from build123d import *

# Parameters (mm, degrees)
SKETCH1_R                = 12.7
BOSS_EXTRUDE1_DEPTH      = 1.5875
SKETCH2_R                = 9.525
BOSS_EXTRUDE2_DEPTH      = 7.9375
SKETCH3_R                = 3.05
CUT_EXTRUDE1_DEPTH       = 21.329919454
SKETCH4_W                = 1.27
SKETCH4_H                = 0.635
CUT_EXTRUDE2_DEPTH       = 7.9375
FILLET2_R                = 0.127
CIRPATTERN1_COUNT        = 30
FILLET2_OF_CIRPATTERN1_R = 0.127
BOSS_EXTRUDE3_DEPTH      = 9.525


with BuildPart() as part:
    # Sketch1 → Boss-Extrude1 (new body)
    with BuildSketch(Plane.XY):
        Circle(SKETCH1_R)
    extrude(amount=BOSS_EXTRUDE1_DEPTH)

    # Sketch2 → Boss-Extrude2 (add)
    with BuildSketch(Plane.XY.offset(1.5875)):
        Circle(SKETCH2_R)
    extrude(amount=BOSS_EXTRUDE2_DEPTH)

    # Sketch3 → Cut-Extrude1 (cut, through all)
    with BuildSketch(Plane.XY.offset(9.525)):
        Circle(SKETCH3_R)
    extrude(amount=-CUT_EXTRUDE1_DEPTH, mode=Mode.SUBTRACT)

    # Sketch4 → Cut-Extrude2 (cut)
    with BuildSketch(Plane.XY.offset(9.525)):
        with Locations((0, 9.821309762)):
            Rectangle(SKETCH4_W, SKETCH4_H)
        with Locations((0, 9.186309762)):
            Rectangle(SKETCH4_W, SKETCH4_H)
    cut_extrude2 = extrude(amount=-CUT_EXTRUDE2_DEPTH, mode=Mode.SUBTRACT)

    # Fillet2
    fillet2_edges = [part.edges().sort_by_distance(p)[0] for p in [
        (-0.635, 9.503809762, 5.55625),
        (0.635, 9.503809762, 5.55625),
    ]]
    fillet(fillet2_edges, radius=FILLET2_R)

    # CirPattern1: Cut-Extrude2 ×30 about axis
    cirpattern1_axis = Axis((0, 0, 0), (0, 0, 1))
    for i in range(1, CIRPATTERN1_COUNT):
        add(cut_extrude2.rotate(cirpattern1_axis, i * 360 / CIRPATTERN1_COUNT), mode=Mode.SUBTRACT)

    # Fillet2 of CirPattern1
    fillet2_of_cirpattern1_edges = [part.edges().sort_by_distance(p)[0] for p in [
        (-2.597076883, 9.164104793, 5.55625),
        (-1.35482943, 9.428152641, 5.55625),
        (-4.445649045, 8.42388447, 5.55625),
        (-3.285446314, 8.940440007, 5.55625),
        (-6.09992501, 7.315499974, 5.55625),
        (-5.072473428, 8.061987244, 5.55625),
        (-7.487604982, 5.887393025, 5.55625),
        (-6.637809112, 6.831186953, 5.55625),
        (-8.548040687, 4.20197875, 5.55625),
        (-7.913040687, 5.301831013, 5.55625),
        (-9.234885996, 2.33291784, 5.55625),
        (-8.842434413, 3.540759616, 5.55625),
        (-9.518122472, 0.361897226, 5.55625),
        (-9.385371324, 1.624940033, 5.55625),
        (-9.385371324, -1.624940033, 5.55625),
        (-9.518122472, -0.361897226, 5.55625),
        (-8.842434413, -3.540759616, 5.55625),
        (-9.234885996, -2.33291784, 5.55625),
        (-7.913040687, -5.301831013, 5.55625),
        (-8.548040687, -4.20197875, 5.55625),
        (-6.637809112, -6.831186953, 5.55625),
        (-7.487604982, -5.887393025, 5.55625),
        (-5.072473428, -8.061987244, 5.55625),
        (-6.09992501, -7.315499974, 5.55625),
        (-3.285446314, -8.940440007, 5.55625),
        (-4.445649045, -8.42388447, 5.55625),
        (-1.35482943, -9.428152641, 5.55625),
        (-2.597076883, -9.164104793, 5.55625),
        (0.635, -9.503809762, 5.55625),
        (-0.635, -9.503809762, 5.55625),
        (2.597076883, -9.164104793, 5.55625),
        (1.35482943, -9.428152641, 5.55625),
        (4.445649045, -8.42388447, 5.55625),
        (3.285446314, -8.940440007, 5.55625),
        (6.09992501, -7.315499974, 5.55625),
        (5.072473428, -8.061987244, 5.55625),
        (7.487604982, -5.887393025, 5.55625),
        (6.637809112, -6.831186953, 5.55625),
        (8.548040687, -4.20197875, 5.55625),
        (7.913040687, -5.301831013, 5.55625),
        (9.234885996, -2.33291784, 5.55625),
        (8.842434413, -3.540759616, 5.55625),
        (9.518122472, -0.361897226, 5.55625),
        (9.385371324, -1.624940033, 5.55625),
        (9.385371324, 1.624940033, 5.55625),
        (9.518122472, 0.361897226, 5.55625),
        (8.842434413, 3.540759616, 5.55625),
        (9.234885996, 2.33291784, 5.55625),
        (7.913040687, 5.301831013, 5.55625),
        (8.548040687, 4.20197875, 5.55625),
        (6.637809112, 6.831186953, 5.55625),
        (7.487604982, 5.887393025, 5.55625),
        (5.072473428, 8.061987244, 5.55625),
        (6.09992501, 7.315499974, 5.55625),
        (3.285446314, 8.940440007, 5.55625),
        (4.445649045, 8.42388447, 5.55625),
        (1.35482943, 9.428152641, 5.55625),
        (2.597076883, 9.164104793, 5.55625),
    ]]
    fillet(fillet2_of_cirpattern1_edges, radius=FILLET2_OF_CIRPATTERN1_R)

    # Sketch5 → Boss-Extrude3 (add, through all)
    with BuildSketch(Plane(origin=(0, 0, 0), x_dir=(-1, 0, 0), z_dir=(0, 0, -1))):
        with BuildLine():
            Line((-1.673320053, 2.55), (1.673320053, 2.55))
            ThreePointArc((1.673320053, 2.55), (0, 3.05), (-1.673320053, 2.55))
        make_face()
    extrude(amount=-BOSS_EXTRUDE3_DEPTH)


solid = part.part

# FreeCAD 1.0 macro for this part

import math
import FreeCAD as App
import Part
import Sketcher

V = App.Vector
Q = App.Units.Quantity


def edges_at(feature, points):
    """Names of the edges that pass closest to the given points."""
    edges = feature.Shape.Edges
    near = lambda p: min(range(len(edges)), key=lambda i: edges[i].distToShape(Part.Vertex(*p))[0])
    return sorted({f"Edge{near(p) + 1}" for p in points})


def add_polygon(sketch, points):
    """Adds a closed chain of lines whose ends are joined by coincident constraints."""
    first, n = sketch.GeometryCount, len(points)
    for a, b in zip(points, points[1:] + points[:1]):
        sketch.addGeometry(Part.LineSegment(App.Vector(*a, 0), App.Vector(*b, 0)), False)
    for i in range(n):
        sketch.addConstraint(Sketcher.Constraint("Coincident", first + i, 2, first + (i + 1) % n, 1))

doc = App.newDocument("Part")
body = doc.addObject("PartDesign::Body", "Body")

# Sketch on XY plane
sketch1 = body.newObject("Sketcher::SketchObject", "Sketch")
sketch1.AttachmentSupport = (doc.getObject("XY_Plane"), [""])
sketch1.MapMode = "FlatFace"
sketch1.addGeometry(Part.Circle(V(0, 0, 0), V(0, 0, 1), 13), False)
sketch1.addConstraint(Sketcher.Constraint("Coincident", 0, 3, -1, 1))
sketch1.addConstraint(Sketcher.Constraint("Diameter", 0, Q("1 in")))
pad1 = body.newObject("PartDesign::Pad", "Pad")
pad1.Profile = sketch1
pad1.Length = Q("0.0625 in")

# Sketch on XY plane
sketch2 = body.newObject("Sketcher::SketchObject", "Sketch001")
sketch2.AttachmentSupport = (doc.getObject("XY_Plane"), [""])
sketch2.MapMode = "FlatFace"
sketch2.AttachmentOffset = App.Placement(V(0, 0, 0.0625 * 25.4), App.Rotation())
sketch2.addGeometry(Part.Circle(V(0, 0, 0), V(0, 0, 1), 10), False)
sketch2.addConstraint(Sketcher.Constraint("Coincident", 0, 3, -1, 1))
sketch2.addConstraint(Sketcher.Constraint("Diameter", 0, Q("0.75 in")))
pad2 = body.newObject("PartDesign::Pad", "Pad001")
pad2.Profile = sketch2
pad2.Length = Q("0.3125 in")

# Sketch on XY plane
sketch3 = body.newObject("Sketcher::SketchObject", "Sketch002")
sketch3.AttachmentSupport = (doc.getObject("XY_Plane"), [""])
sketch3.MapMode = "FlatFace"
sketch3.AttachmentOffset = App.Placement(V(0, 0, 0.375 * 25.4), App.Rotation())
sketch3.addGeometry(Part.Circle(V(0, 0, 0), V(0, 0, 1), 3), False)
sketch3.addConstraint(Sketcher.Constraint("Coincident", 0, 3, -1, 1))
sketch3.addConstraint(Sketcher.Constraint("Diameter", 0, Q("6.1 mm")))
pocket1 = body.newObject("PartDesign::Pocket", "Pocket")
pocket1.Profile = sketch3
pocket1.Type = "ThroughAll"

# Sketch on XY plane
sketch4 = body.newObject("Sketcher::SketchObject", "Sketch003")
sketch4.AttachmentSupport = (doc.getObject("XY_Plane"), [""])
sketch4.MapMode = "FlatFace"
sketch4.AttachmentOffset = App.Placement(V(0, 0, 0.375 * 25.4), App.Rotation())
add_polygon(sketch4, [(-0.6, 10.1), (-0.6, 8.9), (0.6, 8.9), (0.6, 10.1)])  # lines 0-3
sketch4.addConstraint(Sketcher.Constraint("Vertical", 0))
sketch4.addConstraint(Sketcher.Constraint("Horizontal", 1))
sketch4.addConstraint(Sketcher.Constraint("Vertical", 2))
sketch4.addConstraint(Sketcher.Constraint("Horizontal", 3))
sketch4.addConstraint(Sketcher.Constraint("Equal", 3, 0))
sketch4.addConstraint(Sketcher.Constraint("DistanceX", 1, 1, 1, 2, Q("0.05 in")))
sketch4.addConstraint(Sketcher.Constraint("DistanceX", 0, 2, -1, 1, Q("0.025 in")))
sketch4.addConstraint(Sketcher.Constraint("DistanceY", -1, 1, 0, 2, Q("8.86881 mm")))
pocket2 = body.newObject("PartDesign::Pocket", "Pocket001")
pocket2.Profile = sketch4
pocket2.Length = Q("0.3125 in")
doc.recompute()

fillet = body.newObject("PartDesign::Fillet", "Fillet")
fillet.Base = (pocket2, edges_at(pocket2, [(-0.635, 9.504, 5.556), (0.635, 9.504, 5.556)]))
fillet.Radius = Q("0.005 in")
doc.recompute()

polarpattern = body.newObject("PartDesign::PolarPattern", "PolarPattern")
polarpattern.Originals = [pocket2]
polarpattern.Axis = (doc.getObject("Z_Axis"), [""])
polarpattern.Angle = 360
polarpattern.Occurrences = 30
body.Tip = polarpattern
doc.recompute()

fillet2 = body.newObject("PartDesign::Fillet", "Fillet001")
fillet2.Base = (polarpattern, edges_at(polarpattern, [
    (-2.597, 9.164, 5.556),
    (-1.355, 9.428, 5.556),
    (-4.446, 8.424, 5.556),
    (-3.285, 8.94, 5.556),
    (-6.1, 7.315, 5.556),
    (-5.072, 8.062, 5.556),
    (-7.488, 5.887, 5.556),
    (-6.638, 6.831, 5.556),
    (-8.548, 4.202, 5.556),
    (-7.913, 5.302, 5.556),
    (-9.235, 2.333, 5.556),
    (-8.842, 3.541, 5.556),
    (-9.518, 0.362, 5.556),
    (-9.385, 1.625, 5.556),
    (-9.385, -1.625, 5.556),
    (-9.518, -0.362, 5.556),
    (-8.842, -3.541, 5.556),
    (-9.235, -2.333, 5.556),
    (-7.913, -5.302, 5.556),
    (-8.548, -4.202, 5.556),
    (-6.638, -6.831, 5.556),
    (-7.488, -5.887, 5.556),
    (-5.072, -8.062, 5.556),
    (-6.1, -7.315, 5.556),
    (-3.285, -8.94, 5.556),
    (-4.446, -8.424, 5.556),
    (-1.355, -9.428, 5.556),
    (-2.597, -9.164, 5.556),
    (0.635, -9.504, 5.556),
    (-0.635, -9.504, 5.556),
    (2.597, -9.164, 5.556),
    (1.355, -9.428, 5.556),
    (4.446, -8.424, 5.556),
    (3.285, -8.94, 5.556),
    (6.1, -7.315, 5.556),
    (5.072, -8.062, 5.556),
    (7.488, -5.887, 5.556),
    (6.638, -6.831, 5.556),
    (8.548, -4.202, 5.556),
    (7.913, -5.302, 5.556),
    (9.235, -2.333, 5.556),
    (8.842, -3.541, 5.556),
    (9.518, -0.362, 5.556),
    (9.385, -1.625, 5.556),
    (9.385, 1.625, 5.556),
    (9.518, 0.362, 5.556),
    (8.842, 3.541, 5.556),
    (9.235, 2.333, 5.556),
    (7.913, 5.302, 5.556),
    (8.548, 4.202, 5.556),
    (6.638, 6.831, 5.556),
    (7.488, 5.887, 5.556),
    (5.072, 8.062, 5.556),
    (6.1, 7.315, 5.556),
    (3.285, 8.94, 5.556),
    (4.446, 8.424, 5.556),
    (1.355, 9.428, 5.556),
    (2.597, 9.164, 5.556),
]))
fillet2.Radius = Q("0.005 in")

# Sketch on XY plane
sketch5 = body.newObject("Sketcher::SketchObject", "Sketch004")
sketch5.AttachmentSupport = (doc.getObject("XY_Plane"), [""])
sketch5.MapMode = "FlatFace"
sketch5.addGeometry(Part.LineSegment(V(1.7, 2.5, 0), V(-1.7, 2.5, 0)), False)
sketch5.addGeometry(Part.ArcOfCircle(Part.Circle(V(0, 0, 0), V(0, 0, 1), 3), math.radians(57), math.radians(123)), False)
sketch5.addConstraint(Sketcher.Constraint("Coincident", 0, 1, 1, 1))
sketch5.addConstraint(Sketcher.Constraint("Coincident", 1, 2, 0, 2))
sketch5.addConstraint(Sketcher.Constraint("Horizontal", 0))
sketch5.addConstraint(Sketcher.Constraint("Coincident", 1, 3, -1, 1))
sketch5.addConstraint(Sketcher.Constraint("Radius", 1, Q("3.05 mm")))
sketch5.addConstraint(Sketcher.Constraint("DistanceX", 0, 2, 0, 1, Q("3.34664 mm")))
pad3 = body.newObject("PartDesign::Pad", "Pad002")
pad3.Profile = sketch5
pad3.Length = Q("0.375 in")

doc.recompute()
